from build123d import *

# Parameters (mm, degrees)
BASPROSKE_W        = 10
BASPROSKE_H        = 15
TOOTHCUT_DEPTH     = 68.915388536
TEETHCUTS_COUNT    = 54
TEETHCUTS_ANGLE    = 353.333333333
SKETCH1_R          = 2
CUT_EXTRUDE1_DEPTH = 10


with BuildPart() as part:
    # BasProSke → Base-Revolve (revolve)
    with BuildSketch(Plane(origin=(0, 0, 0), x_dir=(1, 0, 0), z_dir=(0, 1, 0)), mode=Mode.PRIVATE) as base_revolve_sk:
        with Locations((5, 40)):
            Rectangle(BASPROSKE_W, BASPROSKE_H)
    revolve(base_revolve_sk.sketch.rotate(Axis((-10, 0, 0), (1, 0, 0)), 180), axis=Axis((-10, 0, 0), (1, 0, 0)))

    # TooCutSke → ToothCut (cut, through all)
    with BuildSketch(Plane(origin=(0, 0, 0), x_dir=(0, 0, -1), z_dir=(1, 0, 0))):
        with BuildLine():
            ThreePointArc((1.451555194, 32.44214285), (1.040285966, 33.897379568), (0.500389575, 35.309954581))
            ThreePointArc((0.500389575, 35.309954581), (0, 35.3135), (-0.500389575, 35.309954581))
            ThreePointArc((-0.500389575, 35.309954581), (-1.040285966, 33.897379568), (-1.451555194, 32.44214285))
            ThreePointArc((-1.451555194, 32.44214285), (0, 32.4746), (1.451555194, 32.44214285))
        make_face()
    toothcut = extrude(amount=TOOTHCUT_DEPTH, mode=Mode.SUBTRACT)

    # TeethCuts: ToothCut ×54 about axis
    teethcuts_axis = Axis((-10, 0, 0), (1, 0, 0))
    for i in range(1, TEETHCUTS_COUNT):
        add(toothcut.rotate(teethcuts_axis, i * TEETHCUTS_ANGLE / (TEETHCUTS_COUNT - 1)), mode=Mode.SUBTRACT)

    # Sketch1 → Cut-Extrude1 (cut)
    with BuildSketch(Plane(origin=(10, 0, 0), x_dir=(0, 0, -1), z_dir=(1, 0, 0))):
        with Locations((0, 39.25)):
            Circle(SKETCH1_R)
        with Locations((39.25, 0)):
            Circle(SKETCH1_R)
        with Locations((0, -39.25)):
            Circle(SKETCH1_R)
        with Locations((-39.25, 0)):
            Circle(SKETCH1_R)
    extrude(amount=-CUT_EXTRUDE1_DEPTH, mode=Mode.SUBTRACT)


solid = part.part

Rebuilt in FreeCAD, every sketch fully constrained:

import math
import FreeCAD as App
import Part
import Sketcher
from FreeCAD import Vector


def add_polygon(sketch, points):
    """Adds a closed chain of lines whose ends are joined by coincident constraints."""
    first, n = sketch.GeometryCount, len(points)
    for a, b in zip(points, points[1:] + points[:1]):
        sketch.addGeometry(Part.LineSegment(App.Vector(*a, 0), App.Vector(*b, 0)), False)
    for i in range(n):
        sketch.addConstraint(Sketcher.Constraint("Coincident", first + i, 2, first + (i + 1) % n, 1))

doc = App.newDocument("Part")
body = doc.addObject("PartDesign::Body", "Body")

sketch1 = body.newObject("Sketcher::SketchObject", "Sketch")
sketch1.AttachmentSupport = (doc.getObject("XZ_Plane"), [""])
sketch1.MapMode = "FlatFace"
add_polygon(sketch1, [(0, -47.5), (0, -32.5), (10, -32.5), (10, -47.5)])
sketch1.addConstraint([
    Sketcher.Constraint("Vertical", 0),
    Sketcher.Constraint("Horizontal", 1),
    Sketcher.Constraint("Vertical", 2),
    Sketcher.Constraint("Horizontal", 3),
    Sketcher.Constraint("PointOnObject", 0, 2, -2),
    Sketcher.Constraint("DistanceX", 1, 1, 1, 2, 10.0),
    Sketcher.Constraint("DistanceY", 0, 1, 0, 2, 15.0),
    Sketcher.Constraint("DistanceY", 0, 2, -1, 1, 32.5),
])
revolution = body.newObject("PartDesign::Revolution", "Revolution")
revolution.Profile = sketch1
revolution.ReferenceAxis = (sketch1, ["H_Axis"])
revolution.Angle = 360

sketch2 = body.newObject("Sketcher::SketchObject", "Sketch001")
sketch2.AttachmentSupport = (doc.getObject("YZ_Plane"), [""])
sketch2.MapMode = "FlatFace"
sketch2.addGeometry([
    Part.ArcOfCircle(Part.Circle(Vector(28.585027, 14.976722, 0), Vector(0, 0, 1), 16.875), math.radians(-76.787114), math.radians(-66.514672)),
    Part.ArcOfCircle(Part.Circle(Vector(0.000002, 0, 0), Vector(0, 0, 1), 35.313498), math.radians(-0.811904), math.radians(0.811904)),
    Part.ArcOfCircle(Part.Circle(Vector(28.585027, -14.976722, 0), Vector(0, 0, 1), 16.875), math.radians(66.514672), math.radians(76.787114)),
    Part.ArcOfCircle(Part.Circle(Vector(0, 0, 0), Vector(0, 0, 1), 32.4746), math.radians(-2.56187), math.radians(2.56187)),
], False)
sketch2.addConstraint([
    Sketcher.Constraint("Coincident", 0, 2, 1, 1),
    Sketcher.Constraint("Coincident", 1, 2, 2, 1),
    Sketcher.Constraint("Coincident", 2, 2, 3, 2),
    Sketcher.Constraint("Coincident", 3, 1, 0, 1),
    Sketcher.Constraint("Coincident", 1, 3, -1, 1),
    Sketcher.Constraint("Coincident", 3, 3, -1, 1),
    Sketcher.Constraint("Equal", 0, 2),
    Sketcher.Constraint("Symmetric", 0, 3, 2, 3, -1),
    Sketcher.Constraint("Radius", 0, 16.875),
    Sketcher.Constraint("Radius", 1, 35.313498),
    Sketcher.Constraint("Radius", 3, 32.4746),
    Sketcher.Constraint("DistanceY", -1, 1, 0, 3, 14.976722),
    Sketcher.Constraint("DistanceY", 0, 2, -1, 1, 0.50039),
])
pocket1 = body.newObject("PartDesign::Pocket", "Pocket")
pocket1.Profile = sketch2
pocket1.Type = "ThroughAll"
pocket1.Reversed = True
doc.recompute()

polarpattern = body.newObject("PartDesign::PolarPattern", "PolarPattern")
polarpattern.Originals = [pocket1]
polarpattern.Axis = (doc.getObject("X_Axis"), [""])
polarpattern.Angle = 360
polarpattern.Occurrences = 54
body.Tip = polarpattern

sketch3 = body.newObject("Sketcher::SketchObject", "Sketch002")
sketch3.AttachmentSupport = (doc.getObject("YZ_Plane"), [""])
sketch3.MapMode = "FlatFace"
sketch3.AttachmentOffset = App.Placement(Vector(0, 0, 10), App.Rotation())
sketch3.addGeometry([
    Part.Circle(Vector(39.25, 0, 0), Vector(0, 0, 1), 2),
    Part.Circle(Vector(0, -39.25, 0), Vector(0, 0, 1), 2),
    Part.Circle(Vector(-39.25, 0, 0), Vector(0, 0, 1), 2),
    Part.Circle(Vector(0, 39.25, 0), Vector(0, 0, 1), 2),
], False)
sketch3.addConstraint([
    Sketcher.Constraint("Equal", 0, 1),
    Sketcher.Constraint("Equal", 1, 2),
    Sketcher.Constraint("Equal", 2, 3),
    Sketcher.Constraint("Symmetric", 0, 3, 2, 3, -1, 1),
    Sketcher.Constraint("Symmetric", 1, 3, 3, 3, -1, 1),
    Sketcher.Constraint("PointOnObject", 0, 3, -1),
    Sketcher.Constraint("PointOnObject", 1, 3, -2),
    Sketcher.Constraint("Diameter", 0, 4.0),
    Sketcher.Constraint("DistanceX", 2, 3, 0, 3, 78.5),
    Sketcher.Constraint("DistanceY", 1, 3, 3, 3, 78.5),
])
pocket2 = body.newObject("PartDesign::Pocket", "Pocket001")
pocket2.Profile = sketch3
pocket2.Length = 10

doc.recompute()
